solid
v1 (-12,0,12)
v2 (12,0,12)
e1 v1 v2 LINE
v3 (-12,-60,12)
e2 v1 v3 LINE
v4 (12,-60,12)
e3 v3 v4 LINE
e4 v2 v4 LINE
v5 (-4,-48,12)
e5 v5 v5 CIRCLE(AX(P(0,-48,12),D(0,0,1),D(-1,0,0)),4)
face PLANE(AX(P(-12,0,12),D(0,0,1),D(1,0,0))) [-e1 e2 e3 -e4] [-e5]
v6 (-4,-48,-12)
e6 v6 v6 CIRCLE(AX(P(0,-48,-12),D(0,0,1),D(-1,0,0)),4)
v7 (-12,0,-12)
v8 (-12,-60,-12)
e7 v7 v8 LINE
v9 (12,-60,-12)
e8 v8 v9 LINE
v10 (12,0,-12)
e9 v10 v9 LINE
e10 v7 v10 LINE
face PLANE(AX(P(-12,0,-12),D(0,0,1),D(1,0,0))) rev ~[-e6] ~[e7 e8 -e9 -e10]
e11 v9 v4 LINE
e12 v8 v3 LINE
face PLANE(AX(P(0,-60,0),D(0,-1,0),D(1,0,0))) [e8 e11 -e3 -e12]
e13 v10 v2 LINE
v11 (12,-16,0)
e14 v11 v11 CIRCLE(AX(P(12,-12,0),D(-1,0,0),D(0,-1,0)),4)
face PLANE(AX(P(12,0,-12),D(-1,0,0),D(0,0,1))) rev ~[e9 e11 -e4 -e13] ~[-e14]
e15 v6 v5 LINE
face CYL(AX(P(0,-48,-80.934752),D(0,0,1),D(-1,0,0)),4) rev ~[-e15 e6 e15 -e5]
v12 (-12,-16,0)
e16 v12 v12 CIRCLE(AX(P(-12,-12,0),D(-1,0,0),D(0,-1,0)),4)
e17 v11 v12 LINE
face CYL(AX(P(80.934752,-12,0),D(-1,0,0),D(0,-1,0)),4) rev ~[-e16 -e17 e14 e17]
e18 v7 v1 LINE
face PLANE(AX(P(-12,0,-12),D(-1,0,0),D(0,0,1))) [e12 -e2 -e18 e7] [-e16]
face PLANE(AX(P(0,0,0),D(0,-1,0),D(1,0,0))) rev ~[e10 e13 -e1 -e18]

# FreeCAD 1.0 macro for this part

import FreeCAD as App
import Part
import Sketcher
Q = App.Units.Quantity

doc = App.newDocument("Part")
body = doc.addObject("PartDesign::Body", "Body")

# Sketch on XZ plane
sketch1 = doc.addObject("Sketcher::SketchObject", "Sketch")
body.addObject(sketch1)
sketch1.AttachmentSupport = (doc.XZ_Plane, [""])
sketch1.MapMode = "FlatFace"
sketch1.addGeometry([
    Part.LineSegment(App.Vector(-12, 12, 0), App.Vector(-12, -12, 0)),
    Part.LineSegment(App.Vector(-12, -12, 0), App.Vector(12, -12, 0)),
    Part.LineSegment(App.Vector(12, -12, 0), App.Vector(12, 12, 0)),
    Part.LineSegment(App.Vector(12, 12, 0), App.Vector(-12, 12, 0)),
], False)
sketch1.addConstraint([
    Sketcher.Constraint("Coincident", 0, 2, 1, 1),
    Sketcher.Constraint("Coincident", 1, 2, 2, 1),
    Sketcher.Constraint("Coincident", 2, 2, 3, 1),
    Sketcher.Constraint("Coincident", 3, 2, 0, 1),
    Sketcher.Constraint("Vertical", 0),
    Sketcher.Constraint("Horizontal", 1),
    Sketcher.Constraint("Vertical", 2),
    Sketcher.Constraint("Horizontal", 3),
    Sketcher.Constraint("Symmetric", 0, 2, 2, 2, -1, 1),
    Sketcher.Constraint("Equal", 3, 0),
    Sketcher.Constraint("DistanceX", 1, 1, 1, 2, Q("24 mm")),
])
pad1 = doc.addObject("PartDesign::Pad", "Pad")
body.addObject(pad1)
pad1.Profile = sketch1
pad1.Length = 60

# Sketch on YZ plane
sketch2 = doc.addObject("Sketcher::SketchObject", "Sketch001")
body.addObject(sketch2)
sketch2.AttachmentSupport = (doc.YZ_Plane, [""])
sketch2.MapMode = "FlatFace"
sketch2.AttachmentOffset = App.Placement(App.Vector(0, 0, 12), App.Rotation())
sketch2.addGeometry(Part.Circle(App.Vector(-12, 0, 0), App.Vector(0, 0, 1), 4), False)
sketch2.addConstraint([
    Sketcher.Constraint("PointOnObject", 0, 3, -1),
    Sketcher.Constraint("Diameter", 0, Q("8 mm")),
    Sketcher.Constraint("DistanceX", 0, 3, -1, 1, Q("12 mm")),
])
doc.recompute()
hole = doc.addObject("PartDesign::Hole", "Hole")
body.addObject(hole)
hole.Profile = sketch2
hole.ThreadType = "None"
hole.Diameter = 8
hole.DepthType = "ThroughAll"

# Sketch on XY plane
sketch3 = doc.addObject("Sketcher::SketchObject", "Sketch002")
body.addObject(sketch3)
sketch3.AttachmentSupport = (doc.XY_Plane, [""])
sketch3.MapMode = "FlatFace"
sketch3.AttachmentOffset = App.Placement(App.Vector(0, 0, -12), App.Rotation())
sketch3.addGeometry(Part.Circle(App.Vector(0, -48, 0), App.Vector(0, 0, 1), 4), False)
sketch3.addConstraint([
    Sketcher.Constraint("PointOnObject", 0, 3, -2),
    Sketcher.Constraint("Diameter", 0, Q("8 mm")),
    Sketcher.Constraint("DistanceY", 0, 3, -1, 1, Q("48 mm")),
])
doc.recompute()
hole2 = doc.addObject("PartDesign::Hole", "Hole001")
body.addObject(hole2)
hole2.Profile = sketch3
hole2.ThreadType = "None"
hole2.Diameter = 8
hole2.DepthType = "ThroughAll"
hole2.Reversed = True

doc.recompute()
